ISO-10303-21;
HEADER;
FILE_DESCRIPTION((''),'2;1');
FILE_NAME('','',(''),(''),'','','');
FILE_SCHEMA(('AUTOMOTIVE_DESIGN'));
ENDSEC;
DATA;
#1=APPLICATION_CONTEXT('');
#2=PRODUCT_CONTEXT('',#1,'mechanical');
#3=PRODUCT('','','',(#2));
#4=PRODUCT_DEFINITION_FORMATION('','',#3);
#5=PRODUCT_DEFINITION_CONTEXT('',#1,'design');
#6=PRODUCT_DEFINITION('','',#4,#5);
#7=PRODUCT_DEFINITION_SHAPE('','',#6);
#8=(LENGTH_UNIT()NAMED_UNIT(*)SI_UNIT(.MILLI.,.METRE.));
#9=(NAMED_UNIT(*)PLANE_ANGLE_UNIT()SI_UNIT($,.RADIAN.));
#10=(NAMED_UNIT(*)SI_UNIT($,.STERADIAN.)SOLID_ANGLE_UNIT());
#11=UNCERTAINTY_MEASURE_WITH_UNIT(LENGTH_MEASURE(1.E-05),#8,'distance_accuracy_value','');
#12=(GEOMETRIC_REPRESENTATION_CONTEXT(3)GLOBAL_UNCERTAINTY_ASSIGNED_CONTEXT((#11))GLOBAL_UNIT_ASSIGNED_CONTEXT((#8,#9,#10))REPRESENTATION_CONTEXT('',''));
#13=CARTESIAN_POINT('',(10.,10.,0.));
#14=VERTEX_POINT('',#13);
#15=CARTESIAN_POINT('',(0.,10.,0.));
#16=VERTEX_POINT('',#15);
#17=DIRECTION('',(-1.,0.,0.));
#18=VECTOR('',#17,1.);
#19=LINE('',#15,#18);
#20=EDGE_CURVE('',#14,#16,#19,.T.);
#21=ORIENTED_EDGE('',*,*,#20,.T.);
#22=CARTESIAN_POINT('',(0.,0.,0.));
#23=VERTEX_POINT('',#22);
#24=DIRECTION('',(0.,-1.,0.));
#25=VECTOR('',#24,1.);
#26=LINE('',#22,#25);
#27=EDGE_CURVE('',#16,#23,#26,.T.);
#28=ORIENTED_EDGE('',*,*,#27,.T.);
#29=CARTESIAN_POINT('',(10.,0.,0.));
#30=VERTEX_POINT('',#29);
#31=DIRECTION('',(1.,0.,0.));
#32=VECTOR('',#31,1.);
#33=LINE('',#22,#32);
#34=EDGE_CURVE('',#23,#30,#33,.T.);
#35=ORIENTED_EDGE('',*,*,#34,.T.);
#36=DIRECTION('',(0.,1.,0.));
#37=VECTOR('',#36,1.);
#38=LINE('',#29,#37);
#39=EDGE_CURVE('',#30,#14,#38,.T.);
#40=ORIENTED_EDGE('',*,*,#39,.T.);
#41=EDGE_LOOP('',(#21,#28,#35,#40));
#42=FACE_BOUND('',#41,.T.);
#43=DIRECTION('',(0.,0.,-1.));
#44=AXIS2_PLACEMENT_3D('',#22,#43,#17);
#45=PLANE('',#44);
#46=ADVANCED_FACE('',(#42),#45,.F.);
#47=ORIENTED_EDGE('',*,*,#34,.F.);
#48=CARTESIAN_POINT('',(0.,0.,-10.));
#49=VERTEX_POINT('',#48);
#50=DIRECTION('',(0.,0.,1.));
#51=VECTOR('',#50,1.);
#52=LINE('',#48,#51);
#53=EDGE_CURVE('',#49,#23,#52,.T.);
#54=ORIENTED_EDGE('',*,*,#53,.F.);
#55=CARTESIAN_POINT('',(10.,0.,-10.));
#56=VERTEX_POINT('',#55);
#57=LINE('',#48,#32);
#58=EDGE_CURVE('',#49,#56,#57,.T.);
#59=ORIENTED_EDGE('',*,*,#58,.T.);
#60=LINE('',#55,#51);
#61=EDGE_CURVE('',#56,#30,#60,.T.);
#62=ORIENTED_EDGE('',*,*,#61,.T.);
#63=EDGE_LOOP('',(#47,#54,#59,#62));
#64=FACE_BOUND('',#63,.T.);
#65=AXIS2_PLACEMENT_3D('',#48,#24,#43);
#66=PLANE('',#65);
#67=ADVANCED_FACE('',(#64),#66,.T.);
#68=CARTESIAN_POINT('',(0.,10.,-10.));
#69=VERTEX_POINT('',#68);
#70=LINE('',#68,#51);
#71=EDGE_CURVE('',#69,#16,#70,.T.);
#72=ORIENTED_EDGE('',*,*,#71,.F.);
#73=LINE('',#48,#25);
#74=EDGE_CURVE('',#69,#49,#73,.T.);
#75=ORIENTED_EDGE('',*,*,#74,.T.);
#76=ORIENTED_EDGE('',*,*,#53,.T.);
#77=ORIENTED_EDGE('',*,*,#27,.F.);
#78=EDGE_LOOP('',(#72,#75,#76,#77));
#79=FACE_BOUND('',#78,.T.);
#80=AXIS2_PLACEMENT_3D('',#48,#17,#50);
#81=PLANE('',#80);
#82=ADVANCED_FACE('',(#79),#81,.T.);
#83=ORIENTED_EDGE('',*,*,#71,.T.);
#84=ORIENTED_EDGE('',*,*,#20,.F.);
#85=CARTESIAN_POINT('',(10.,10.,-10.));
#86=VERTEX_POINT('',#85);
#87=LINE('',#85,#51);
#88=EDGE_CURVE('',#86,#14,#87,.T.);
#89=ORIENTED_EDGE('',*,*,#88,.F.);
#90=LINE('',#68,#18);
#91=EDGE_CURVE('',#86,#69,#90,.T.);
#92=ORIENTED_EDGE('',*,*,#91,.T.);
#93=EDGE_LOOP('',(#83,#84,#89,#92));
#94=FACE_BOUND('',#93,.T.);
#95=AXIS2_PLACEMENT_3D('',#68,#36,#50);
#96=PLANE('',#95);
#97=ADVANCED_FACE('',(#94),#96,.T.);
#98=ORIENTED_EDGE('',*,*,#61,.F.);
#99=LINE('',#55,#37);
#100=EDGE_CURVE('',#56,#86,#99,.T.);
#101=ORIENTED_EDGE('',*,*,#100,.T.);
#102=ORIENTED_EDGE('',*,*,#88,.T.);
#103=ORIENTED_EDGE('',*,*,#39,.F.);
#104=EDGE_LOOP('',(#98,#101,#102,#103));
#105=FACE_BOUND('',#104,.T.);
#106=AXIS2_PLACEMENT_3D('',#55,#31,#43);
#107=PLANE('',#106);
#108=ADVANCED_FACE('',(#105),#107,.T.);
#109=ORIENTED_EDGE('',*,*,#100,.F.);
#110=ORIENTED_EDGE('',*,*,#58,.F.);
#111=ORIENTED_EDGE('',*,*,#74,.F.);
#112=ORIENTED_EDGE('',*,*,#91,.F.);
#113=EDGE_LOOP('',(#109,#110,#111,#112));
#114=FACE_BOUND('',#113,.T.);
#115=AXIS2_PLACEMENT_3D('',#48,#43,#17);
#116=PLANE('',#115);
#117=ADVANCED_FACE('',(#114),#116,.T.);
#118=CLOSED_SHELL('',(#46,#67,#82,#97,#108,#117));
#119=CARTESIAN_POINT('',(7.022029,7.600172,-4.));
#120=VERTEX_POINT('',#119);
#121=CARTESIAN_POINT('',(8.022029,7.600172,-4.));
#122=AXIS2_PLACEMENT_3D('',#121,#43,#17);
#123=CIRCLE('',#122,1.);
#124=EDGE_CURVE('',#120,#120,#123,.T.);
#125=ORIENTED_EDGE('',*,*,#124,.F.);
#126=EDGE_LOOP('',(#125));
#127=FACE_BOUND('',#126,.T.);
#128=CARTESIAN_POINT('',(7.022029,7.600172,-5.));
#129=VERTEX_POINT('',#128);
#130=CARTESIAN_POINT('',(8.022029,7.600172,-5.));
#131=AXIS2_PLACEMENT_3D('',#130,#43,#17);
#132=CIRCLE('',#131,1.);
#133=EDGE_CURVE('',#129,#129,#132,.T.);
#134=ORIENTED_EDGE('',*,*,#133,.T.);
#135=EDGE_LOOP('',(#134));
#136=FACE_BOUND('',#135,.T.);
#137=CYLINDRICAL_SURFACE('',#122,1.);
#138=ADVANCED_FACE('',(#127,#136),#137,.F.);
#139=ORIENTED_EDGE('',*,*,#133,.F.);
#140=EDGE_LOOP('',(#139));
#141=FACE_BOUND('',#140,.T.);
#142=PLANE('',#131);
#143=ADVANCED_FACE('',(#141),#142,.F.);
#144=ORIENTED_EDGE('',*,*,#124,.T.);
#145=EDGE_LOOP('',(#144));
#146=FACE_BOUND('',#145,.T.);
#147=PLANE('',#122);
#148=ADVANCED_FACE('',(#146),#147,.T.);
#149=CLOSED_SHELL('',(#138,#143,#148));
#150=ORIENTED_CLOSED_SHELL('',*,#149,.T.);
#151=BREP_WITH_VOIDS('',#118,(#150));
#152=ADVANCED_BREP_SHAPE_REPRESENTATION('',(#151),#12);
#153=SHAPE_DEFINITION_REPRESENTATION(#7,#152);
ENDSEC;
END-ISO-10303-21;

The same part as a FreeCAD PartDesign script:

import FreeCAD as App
import Part
import Sketcher

V = App.Vector


def add_polygon(sketch, points):
    """Adds a closed chain of lines whose ends are joined by coincident constraints."""
    first, n = sketch.GeometryCount, len(points)
    for a, b in zip(points, points[1:] + points[:1]):
        sketch.addGeometry(Part.LineSegment(App.Vector(*a, 0), App.Vector(*b, 0)), False)
    for i in range(n):
        sketch.addConstraint(Sketcher.Constraint("Coincident", first + i, 2, first + (i + 1) % n, 1))

doc = App.newDocument("Part")
body = doc.addObject("PartDesign::Body", "Body")

sketch1 = body.newObject("Sketcher::SketchObject", "Sketch")
sketch1.AttachmentSupport = (doc.getObject("XY_Plane"), [""])
sketch1.MapMode = "FlatFace"
add_polygon(sketch1, [(0, 10), (0, 0), (10, 0), (10, 10)])
sketch1.addConstraint([
    Sketcher.Constraint("Vertical", 0),
    Sketcher.Constraint("Horizontal", 1),
    Sketcher.Constraint("Vertical", 2),
    Sketcher.Constraint("Horizontal", 3),
    Sketcher.Constraint("Coincident", 0, 2, -1, 1),
    Sketcher.Constraint("Equal", 3, 0),
    Sketcher.Constraint("DistanceX", 1, 1, 1, 2, 10.0),
])
pad1 = body.newObject("PartDesign::Pad", "Pad")
pad1.Profile = sketch1
pad1.Length = 10
pad1.Reversed = True

sketch2 = body.newObject("Sketcher::SketchObject", "Sketch001")
sketch2.AttachmentSupport = (doc.getObject("XY_Plane"), [""])
sketch2.MapMode = "FlatFace"
sketch2.AttachmentOffset = App.Placement(V(0, 0, -5), App.Rotation())
sketch2.addGeometry(Part.Circle(V(8, 7.6, 0), V(0, 0, 1), 1), False)
sketch2.addConstraint([
    Sketcher.Constraint("Diameter", 0, 2.0),
    Sketcher.Constraint("DistanceX", -1, 1, 0, 3, 8.022029),
    Sketcher.Constraint("DistanceY", -1, 1, 0, 3, 7.600172),
])
pocket1 = body.newObject("PartDesign::Pocket", "Pocket")
pocket1.Profile = sketch2
pocket1.Length = 1
pocket1.Reversed = True

doc.recompute()
